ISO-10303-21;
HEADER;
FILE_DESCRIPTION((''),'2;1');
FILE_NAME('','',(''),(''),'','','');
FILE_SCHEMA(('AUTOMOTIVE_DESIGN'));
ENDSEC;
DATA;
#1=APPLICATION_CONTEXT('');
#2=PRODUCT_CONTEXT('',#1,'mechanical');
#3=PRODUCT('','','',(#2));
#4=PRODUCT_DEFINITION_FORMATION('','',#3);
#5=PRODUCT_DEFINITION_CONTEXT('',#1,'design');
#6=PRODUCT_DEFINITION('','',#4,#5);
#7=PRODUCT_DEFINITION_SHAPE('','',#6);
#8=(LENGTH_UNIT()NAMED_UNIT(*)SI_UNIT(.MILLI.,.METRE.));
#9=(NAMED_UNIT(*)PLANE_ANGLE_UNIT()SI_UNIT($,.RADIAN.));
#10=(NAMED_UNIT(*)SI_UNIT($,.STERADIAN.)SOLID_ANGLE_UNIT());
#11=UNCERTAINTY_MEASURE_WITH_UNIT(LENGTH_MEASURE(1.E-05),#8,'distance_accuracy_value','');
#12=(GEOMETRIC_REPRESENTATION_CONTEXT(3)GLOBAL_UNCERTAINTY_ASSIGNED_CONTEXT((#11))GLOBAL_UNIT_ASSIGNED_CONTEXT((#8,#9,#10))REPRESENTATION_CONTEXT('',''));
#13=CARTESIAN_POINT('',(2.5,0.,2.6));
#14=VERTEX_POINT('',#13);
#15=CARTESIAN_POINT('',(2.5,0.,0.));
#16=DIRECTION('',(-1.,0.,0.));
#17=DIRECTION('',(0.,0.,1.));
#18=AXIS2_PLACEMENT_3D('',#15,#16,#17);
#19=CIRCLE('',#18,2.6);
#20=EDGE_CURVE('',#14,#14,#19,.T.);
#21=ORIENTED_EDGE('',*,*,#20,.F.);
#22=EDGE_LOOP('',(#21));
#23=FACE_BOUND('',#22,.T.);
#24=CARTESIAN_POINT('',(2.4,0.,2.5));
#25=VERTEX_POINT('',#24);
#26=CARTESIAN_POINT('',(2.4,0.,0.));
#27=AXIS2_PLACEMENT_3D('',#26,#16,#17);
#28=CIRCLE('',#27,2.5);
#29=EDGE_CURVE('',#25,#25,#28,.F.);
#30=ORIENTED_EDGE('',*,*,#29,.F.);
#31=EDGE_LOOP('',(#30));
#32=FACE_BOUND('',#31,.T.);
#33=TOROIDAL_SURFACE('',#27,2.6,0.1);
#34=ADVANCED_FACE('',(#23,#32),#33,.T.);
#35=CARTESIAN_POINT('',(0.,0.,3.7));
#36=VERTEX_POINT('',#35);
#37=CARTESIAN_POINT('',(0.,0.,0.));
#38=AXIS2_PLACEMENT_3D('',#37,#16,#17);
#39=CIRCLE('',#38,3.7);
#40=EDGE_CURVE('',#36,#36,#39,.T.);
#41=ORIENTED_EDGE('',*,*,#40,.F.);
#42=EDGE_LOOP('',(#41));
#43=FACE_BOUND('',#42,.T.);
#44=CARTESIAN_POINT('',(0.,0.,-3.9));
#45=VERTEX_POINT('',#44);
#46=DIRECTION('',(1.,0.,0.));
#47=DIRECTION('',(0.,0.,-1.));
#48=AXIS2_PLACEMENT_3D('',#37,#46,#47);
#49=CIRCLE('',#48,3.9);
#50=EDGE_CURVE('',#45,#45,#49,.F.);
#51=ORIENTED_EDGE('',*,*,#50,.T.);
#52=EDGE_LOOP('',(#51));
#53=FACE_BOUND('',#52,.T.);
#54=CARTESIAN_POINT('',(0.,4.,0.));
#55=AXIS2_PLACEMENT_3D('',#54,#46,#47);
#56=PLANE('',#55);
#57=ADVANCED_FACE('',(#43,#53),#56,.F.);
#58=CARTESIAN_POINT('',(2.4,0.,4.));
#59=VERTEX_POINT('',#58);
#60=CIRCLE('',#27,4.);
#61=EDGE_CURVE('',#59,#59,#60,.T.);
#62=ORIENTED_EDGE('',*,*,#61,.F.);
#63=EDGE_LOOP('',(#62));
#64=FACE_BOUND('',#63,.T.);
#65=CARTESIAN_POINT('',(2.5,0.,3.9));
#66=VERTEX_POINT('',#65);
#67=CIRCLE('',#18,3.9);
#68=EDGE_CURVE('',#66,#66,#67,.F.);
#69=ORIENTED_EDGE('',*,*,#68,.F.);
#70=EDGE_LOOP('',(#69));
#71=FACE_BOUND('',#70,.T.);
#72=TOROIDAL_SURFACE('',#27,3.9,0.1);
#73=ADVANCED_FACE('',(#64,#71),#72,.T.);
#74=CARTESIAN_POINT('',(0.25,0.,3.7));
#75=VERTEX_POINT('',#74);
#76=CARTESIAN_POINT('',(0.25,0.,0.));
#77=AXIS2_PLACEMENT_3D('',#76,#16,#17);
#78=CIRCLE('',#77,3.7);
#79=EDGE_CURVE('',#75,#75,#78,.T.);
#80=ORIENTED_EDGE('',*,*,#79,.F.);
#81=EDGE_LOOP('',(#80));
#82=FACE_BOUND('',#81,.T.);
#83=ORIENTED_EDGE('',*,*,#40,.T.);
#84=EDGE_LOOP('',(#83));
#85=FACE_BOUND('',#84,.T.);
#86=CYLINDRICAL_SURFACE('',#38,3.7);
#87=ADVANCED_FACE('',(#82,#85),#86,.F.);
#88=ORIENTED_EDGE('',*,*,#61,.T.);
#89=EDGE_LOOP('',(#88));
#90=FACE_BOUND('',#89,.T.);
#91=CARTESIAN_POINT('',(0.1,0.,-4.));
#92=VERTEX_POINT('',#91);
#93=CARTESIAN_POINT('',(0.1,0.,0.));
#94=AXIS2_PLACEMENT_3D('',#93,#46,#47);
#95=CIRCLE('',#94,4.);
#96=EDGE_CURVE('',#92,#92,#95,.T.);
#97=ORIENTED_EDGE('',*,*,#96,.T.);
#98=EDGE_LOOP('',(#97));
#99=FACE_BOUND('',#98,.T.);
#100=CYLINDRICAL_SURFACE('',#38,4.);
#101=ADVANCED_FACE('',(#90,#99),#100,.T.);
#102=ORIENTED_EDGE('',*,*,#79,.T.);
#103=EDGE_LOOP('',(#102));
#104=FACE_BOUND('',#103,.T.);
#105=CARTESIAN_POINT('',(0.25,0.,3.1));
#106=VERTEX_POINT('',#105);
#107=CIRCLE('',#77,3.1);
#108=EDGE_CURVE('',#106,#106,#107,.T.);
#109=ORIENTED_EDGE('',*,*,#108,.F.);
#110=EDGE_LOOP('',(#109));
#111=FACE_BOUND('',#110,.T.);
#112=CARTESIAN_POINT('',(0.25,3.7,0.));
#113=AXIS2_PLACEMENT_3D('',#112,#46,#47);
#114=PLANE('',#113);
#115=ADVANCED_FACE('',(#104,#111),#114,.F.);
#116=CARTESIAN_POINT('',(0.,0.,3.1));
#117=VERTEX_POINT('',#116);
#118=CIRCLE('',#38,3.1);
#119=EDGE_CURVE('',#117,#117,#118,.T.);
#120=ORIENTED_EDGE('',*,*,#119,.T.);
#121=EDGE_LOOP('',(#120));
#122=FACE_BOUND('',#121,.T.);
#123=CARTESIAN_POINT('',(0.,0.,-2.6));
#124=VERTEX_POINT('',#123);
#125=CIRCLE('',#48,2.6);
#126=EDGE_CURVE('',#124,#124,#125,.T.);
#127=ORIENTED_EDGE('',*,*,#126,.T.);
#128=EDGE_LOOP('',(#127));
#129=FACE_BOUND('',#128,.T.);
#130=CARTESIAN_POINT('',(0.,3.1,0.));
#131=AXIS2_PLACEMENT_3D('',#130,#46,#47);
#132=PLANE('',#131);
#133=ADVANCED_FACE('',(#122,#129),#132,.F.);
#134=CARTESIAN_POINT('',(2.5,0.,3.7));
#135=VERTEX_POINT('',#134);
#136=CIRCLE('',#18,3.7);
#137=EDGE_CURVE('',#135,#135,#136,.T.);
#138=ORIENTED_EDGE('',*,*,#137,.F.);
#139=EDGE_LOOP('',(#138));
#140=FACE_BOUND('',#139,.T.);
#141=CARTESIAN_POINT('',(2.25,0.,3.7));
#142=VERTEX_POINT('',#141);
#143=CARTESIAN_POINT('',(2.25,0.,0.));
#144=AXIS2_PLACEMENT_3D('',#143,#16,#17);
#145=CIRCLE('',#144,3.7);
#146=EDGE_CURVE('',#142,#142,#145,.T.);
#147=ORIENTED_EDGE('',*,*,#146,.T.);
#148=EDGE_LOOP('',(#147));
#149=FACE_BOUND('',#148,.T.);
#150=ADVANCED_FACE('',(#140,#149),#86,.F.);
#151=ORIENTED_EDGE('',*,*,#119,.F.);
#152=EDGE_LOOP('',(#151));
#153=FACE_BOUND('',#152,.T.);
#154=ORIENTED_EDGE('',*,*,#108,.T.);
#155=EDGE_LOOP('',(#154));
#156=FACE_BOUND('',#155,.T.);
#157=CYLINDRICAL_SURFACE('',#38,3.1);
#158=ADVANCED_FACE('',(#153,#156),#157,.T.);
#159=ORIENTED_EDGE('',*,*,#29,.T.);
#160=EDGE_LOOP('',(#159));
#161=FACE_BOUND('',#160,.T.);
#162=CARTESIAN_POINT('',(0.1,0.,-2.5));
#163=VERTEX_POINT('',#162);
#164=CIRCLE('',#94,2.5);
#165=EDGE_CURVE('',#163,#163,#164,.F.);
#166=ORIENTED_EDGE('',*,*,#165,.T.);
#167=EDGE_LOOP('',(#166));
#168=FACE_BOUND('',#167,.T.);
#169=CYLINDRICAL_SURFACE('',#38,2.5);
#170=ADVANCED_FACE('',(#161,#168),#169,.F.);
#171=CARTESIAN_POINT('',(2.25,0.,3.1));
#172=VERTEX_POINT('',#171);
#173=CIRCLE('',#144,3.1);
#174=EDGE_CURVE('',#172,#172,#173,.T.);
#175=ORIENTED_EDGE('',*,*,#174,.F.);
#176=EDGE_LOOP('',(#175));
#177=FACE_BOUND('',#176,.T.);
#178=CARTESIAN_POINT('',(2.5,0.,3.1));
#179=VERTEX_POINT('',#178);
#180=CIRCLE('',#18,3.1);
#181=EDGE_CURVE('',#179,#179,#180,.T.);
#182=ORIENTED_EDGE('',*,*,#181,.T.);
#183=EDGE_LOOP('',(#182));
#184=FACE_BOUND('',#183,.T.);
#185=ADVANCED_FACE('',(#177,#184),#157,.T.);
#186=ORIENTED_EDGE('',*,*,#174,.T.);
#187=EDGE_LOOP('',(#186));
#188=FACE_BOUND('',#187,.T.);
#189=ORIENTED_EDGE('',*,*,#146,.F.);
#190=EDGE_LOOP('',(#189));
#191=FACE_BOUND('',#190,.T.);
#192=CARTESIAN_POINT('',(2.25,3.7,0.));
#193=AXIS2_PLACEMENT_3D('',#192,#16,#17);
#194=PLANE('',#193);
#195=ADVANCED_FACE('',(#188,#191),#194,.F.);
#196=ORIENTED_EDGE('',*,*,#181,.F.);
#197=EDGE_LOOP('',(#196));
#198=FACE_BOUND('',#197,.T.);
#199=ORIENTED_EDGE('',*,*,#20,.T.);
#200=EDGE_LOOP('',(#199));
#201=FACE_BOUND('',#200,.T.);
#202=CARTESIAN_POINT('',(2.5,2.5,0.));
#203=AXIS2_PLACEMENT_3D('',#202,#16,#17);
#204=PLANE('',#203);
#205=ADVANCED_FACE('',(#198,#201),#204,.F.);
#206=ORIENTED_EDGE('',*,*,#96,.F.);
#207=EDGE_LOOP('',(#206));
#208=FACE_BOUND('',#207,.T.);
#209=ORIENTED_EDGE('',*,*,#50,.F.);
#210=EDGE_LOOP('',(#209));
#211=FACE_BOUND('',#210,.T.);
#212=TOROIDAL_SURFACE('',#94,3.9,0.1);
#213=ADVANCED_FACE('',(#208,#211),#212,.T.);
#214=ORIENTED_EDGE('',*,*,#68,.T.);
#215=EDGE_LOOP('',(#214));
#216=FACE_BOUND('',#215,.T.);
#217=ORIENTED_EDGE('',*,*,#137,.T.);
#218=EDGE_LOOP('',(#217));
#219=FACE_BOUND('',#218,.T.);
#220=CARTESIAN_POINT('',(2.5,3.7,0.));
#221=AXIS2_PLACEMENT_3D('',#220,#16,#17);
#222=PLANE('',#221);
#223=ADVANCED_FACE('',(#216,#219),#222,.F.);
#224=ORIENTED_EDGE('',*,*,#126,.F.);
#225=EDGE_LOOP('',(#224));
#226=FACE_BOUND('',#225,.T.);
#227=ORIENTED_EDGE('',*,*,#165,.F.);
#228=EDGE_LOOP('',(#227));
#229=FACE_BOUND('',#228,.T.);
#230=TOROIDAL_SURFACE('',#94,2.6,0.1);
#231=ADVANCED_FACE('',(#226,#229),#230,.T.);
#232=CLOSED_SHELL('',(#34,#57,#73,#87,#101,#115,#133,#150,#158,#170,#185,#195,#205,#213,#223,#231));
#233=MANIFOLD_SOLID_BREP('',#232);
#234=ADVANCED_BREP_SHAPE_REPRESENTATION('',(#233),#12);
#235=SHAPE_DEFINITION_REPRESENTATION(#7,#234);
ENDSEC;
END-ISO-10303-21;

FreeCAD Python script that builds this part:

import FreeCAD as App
import Part
import Sketcher
Q = App.Units.Quantity


def edges_at(feature, points):
    """Names of the edges that pass closest to the given points."""
    edges = feature.Shape.Edges
    near = lambda p: min(range(len(edges)), key=lambda i: edges[i].distToShape(Part.Vertex(*p))[0])
    return sorted({f"Edge{near(p) + 1}" for p in points})

doc = App.newDocument("Part")
body = doc.addObject("PartDesign::Body", "Body")

# Sketch on XY plane
sketch1 = body.newObject("Sketcher::SketchObject", "Sketch")
sketch1.AttachmentSupport = (doc.getObject("XY_Plane"), [""])
sketch1.MapMode = "FlatFace"
sketch1.addGeometry([
    Part.LineSegment(App.Vector(0, 4, 0), App.Vector(0, 3.7, 0)),  # 0
    Part.LineSegment(App.Vector(0, 3.7, 0), App.Vector(0.25, 3.7, 0)),  # 1
    Part.LineSegment(App.Vector(0.25, 3.7, 0), App.Vector(0.25, 3.1, 0)),  # 2
    Part.LineSegment(App.Vector(0.25, 3.1, 0), App.Vector(0, 3.1, 0)),  # 3
    Part.LineSegment(App.Vector(0, 3.1, 0), App.Vector(0, 2.5, 0)),  # 4
    Part.LineSegment(App.Vector(0, 2.5, 0), App.Vector(2.5, 2.5, 0)),  # 5
    Part.LineSegment(App.Vector(2.5, 2.5, 0), App.Vector(2.5, 3.1, 0)),  # 6
    Part.LineSegment(App.Vector(2.5, 3.1, 0), App.Vector(2.25, 3.1, 0)),  # 7
    Part.LineSegment(App.Vector(2.25, 3.1, 0), App.Vector(2.25, 3.7, 0)),  # 8
    Part.LineSegment(App.Vector(2.25, 3.7, 0), App.Vector(2.5, 3.7, 0)),  # 9
    Part.LineSegment(App.Vector(2.5, 3.7, 0), App.Vector(2.5, 4, 0)),  # 10
    Part.LineSegment(App.Vector(2.5, 4, 0), App.Vector(0, 4, 0)),  # 11
], False)
sketch1.addConstraint([
    Sketcher.Constraint("Coincident", 0, 2, 1, 1),
    Sketcher.Constraint("Coincident", 1, 2, 2, 1),
    Sketcher.Constraint("Coincident", 2, 2, 3, 1),
    Sketcher.Constraint("Coincident", 3, 2, 4, 1),
    Sketcher.Constraint("Coincident", 4, 2, 5, 1),
    Sketcher.Constraint("Coincident", 5, 2, 6, 1),
    Sketcher.Constraint("Coincident", 6, 2, 7, 1),
    Sketcher.Constraint("Coincident", 7, 2, 8, 1),
    Sketcher.Constraint("Coincident", 8, 2, 9, 1),
    Sketcher.Constraint("Coincident", 9, 2, 10, 1),
    Sketcher.Constraint("Coincident", 10, 2, 11, 1),
    Sketcher.Constraint("Coincident", 11, 2, 0, 1),
    Sketcher.Constraint("Vertical", 0),
    Sketcher.Constraint("Horizontal", 1),
    Sketcher.Constraint("Vertical", 2),
    Sketcher.Constraint("Horizontal", 3),
    Sketcher.Constraint("Vertical", 4),
    Sketcher.Constraint("Horizontal", 5),
    Sketcher.Constraint("Vertical", 6),
    Sketcher.Constraint("Horizontal", 7),
    Sketcher.Constraint("Vertical", 8),
    Sketcher.Constraint("Horizontal", 9),
    Sketcher.Constraint("Vertical", 10),
    Sketcher.Constraint("Horizontal", 11),
    Sketcher.Constraint("PointOnObject", 0, 2, -2),
    Sketcher.Constraint("PointOnObject", 3, 2, -2),
    Sketcher.Constraint("Horizontal", 3, 2, 6, 2),
    Sketcher.Constraint("Horizontal", 1, 2, 8, 2),
    Sketcher.Constraint("Vertical", 6, 2, 9, 2),
    Sketcher.Constraint("Equal", 3, 7),
    Sketcher.Constraint("Equal", 2, 4),
    Sketcher.Constraint("DistanceX", 5, 1, 5, 2, Q("2.5 mm")),
    Sketcher.Constraint("DistanceY", 0, 2, 0, 1, Q("0.3 mm")),
    Sketcher.Constraint("DistanceY", 2, 2, 2, 1, Q("0.6 mm")),
    Sketcher.Constraint("DistanceY", -1, 1, 10, 2, Q("4 mm")),
    Sketcher.Constraint("DistanceX", 2, 2, 7, 2, Q("2 mm")),
])
revolution = body.newObject("PartDesign::Revolution", "Revolution")
revolution.Profile = sketch1
revolution.ReferenceAxis = (sketch1, ["H_Axis"])
revolution.Angle = 360
doc.recompute()

fillet = body.newObject("PartDesign::Fillet", "Fillet")
fillet.Base = (revolution, edges_at(revolution, [
    (2.5, -2.5, 0),
    (0, -2.5, 0),
    (0, -4, 0),
    (2.5, -4, 0),
]))
fillet.Radius = 0.1

doc.recompute()
